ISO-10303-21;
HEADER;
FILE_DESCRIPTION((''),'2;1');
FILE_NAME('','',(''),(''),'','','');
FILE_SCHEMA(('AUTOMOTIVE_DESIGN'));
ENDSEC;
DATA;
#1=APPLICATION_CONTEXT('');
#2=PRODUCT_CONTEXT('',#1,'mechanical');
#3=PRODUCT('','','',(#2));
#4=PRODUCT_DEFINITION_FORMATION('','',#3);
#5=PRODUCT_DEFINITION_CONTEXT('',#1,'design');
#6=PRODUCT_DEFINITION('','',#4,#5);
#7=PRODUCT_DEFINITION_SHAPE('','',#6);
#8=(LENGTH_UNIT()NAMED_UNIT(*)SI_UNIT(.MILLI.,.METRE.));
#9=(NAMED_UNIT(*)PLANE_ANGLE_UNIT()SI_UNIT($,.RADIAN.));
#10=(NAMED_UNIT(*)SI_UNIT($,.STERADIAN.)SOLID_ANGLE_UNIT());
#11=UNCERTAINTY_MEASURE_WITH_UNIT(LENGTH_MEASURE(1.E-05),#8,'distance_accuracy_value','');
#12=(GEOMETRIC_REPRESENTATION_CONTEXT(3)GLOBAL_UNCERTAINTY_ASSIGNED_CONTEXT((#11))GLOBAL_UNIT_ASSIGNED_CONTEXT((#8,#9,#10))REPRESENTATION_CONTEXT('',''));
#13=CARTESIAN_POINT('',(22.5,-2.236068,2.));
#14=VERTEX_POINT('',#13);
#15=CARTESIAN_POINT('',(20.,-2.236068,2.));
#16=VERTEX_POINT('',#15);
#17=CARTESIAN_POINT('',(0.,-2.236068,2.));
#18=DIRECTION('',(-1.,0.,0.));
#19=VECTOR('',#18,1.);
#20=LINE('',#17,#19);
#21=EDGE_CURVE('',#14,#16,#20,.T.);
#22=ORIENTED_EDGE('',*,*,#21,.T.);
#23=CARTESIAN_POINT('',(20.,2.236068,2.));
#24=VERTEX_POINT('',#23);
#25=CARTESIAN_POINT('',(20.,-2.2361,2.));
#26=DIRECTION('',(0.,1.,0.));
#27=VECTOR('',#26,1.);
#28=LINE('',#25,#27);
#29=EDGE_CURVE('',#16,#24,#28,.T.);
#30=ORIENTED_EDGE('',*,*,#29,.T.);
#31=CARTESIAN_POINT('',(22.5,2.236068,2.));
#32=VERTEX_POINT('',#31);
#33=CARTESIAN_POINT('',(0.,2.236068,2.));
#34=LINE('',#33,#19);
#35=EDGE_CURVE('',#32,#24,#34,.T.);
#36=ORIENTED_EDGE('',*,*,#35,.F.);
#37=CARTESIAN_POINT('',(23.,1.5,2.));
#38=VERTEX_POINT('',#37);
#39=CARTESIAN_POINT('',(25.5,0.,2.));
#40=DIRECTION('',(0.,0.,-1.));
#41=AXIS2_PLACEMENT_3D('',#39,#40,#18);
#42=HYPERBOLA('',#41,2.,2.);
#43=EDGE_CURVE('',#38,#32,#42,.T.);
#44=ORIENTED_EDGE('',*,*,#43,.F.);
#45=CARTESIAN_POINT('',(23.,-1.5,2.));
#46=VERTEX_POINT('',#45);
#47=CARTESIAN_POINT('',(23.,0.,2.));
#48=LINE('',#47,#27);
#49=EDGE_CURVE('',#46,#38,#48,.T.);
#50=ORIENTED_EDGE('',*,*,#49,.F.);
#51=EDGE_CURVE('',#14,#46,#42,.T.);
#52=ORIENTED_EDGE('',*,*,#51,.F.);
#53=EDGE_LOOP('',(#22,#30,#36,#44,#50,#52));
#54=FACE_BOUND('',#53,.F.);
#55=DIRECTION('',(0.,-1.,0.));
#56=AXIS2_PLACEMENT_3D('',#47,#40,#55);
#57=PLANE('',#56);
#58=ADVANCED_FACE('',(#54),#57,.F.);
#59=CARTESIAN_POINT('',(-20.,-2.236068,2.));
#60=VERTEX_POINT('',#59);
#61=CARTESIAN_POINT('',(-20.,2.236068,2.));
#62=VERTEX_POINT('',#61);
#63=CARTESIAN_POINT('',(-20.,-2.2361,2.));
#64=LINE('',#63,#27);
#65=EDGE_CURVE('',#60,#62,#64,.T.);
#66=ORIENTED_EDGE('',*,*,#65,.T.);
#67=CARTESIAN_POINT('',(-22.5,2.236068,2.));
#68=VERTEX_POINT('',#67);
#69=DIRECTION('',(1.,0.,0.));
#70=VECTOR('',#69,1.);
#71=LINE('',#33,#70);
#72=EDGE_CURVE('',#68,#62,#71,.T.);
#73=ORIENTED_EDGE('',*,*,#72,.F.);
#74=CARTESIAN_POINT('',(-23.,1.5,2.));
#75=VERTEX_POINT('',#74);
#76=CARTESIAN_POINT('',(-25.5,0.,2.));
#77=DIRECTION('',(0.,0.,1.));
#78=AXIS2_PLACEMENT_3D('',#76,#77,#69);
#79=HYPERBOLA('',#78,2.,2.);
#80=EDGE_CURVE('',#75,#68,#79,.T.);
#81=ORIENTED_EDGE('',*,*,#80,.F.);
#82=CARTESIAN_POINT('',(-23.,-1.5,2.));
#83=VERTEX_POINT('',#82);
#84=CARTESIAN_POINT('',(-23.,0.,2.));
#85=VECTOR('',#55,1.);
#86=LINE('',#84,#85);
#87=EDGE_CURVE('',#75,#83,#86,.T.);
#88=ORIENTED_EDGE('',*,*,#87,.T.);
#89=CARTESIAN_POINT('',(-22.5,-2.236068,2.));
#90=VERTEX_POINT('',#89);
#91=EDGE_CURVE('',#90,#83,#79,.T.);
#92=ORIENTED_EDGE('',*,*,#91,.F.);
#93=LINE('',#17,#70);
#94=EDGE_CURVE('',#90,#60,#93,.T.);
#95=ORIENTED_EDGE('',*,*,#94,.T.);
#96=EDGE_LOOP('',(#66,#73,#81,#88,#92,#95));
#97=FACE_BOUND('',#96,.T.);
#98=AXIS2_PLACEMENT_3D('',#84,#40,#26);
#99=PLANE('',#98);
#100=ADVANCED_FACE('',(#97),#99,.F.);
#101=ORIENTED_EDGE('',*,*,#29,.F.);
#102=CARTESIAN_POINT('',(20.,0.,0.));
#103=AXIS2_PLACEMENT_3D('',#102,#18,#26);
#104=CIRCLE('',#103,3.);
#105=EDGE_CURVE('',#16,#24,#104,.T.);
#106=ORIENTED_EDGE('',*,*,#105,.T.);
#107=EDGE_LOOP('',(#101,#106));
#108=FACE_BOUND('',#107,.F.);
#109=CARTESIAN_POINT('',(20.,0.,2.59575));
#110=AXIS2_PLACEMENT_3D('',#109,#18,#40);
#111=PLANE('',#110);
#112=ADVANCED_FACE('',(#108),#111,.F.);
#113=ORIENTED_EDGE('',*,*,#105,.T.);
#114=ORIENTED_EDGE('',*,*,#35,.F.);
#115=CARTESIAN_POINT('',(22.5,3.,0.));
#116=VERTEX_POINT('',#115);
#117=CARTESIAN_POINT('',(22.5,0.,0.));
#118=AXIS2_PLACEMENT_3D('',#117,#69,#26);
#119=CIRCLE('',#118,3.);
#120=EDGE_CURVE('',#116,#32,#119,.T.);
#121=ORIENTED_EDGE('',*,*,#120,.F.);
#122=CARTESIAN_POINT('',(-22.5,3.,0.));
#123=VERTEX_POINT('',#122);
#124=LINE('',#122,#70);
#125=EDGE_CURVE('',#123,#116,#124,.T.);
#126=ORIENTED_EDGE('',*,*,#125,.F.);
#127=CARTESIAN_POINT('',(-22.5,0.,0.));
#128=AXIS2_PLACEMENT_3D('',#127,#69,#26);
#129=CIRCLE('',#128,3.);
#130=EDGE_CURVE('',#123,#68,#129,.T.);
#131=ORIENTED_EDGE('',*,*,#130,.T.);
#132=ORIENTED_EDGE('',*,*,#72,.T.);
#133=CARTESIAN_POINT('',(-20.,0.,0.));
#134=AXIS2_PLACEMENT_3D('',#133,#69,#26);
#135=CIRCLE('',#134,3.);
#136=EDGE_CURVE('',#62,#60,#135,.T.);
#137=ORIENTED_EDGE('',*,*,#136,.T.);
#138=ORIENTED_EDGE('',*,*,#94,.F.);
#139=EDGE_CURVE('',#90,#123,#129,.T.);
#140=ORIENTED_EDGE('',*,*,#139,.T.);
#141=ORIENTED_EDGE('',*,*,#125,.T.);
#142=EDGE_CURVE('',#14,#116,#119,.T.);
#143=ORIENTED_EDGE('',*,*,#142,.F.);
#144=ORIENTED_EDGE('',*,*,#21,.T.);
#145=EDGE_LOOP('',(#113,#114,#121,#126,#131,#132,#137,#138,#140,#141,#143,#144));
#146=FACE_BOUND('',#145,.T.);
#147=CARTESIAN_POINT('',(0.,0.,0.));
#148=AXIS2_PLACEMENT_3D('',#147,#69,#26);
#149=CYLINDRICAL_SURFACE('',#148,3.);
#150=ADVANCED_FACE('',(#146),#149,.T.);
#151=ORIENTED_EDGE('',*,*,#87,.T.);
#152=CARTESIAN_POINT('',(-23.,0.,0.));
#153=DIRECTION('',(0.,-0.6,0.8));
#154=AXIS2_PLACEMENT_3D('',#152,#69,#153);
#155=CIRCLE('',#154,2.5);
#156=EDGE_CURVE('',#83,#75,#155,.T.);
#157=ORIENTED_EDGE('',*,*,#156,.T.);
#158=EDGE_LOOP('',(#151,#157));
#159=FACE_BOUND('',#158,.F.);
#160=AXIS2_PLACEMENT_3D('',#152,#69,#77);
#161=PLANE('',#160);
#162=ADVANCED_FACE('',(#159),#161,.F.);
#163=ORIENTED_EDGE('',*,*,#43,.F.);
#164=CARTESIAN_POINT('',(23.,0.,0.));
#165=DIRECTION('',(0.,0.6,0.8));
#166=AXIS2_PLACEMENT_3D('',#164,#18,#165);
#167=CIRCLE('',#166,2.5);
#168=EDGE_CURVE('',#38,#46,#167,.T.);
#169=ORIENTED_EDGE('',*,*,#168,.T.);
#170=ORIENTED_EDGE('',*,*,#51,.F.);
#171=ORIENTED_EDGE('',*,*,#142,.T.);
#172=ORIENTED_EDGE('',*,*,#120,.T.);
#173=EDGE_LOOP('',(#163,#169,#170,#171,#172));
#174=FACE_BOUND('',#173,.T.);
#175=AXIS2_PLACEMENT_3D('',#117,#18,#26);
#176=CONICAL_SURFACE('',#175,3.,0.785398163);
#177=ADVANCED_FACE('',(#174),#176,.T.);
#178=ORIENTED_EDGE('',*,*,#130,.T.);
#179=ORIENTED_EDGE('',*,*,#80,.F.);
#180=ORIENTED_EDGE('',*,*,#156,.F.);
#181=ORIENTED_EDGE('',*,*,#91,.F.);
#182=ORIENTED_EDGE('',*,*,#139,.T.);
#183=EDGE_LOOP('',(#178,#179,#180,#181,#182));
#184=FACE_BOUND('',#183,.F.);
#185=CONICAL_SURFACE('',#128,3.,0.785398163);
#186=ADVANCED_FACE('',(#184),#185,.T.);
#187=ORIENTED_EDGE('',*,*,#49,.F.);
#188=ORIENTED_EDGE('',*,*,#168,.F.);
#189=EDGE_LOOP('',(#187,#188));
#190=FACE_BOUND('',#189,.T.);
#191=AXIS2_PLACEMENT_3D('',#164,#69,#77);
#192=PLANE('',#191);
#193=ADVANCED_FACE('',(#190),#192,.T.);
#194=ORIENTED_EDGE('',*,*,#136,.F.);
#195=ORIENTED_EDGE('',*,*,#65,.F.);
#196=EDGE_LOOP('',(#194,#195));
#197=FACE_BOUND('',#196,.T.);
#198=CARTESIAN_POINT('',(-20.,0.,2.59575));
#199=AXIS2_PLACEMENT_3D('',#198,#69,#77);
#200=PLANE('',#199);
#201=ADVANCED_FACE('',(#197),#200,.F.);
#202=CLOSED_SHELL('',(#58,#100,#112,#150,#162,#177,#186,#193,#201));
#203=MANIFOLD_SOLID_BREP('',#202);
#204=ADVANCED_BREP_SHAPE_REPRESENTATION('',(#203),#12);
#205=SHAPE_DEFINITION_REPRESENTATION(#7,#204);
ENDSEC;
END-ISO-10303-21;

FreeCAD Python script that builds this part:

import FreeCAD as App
import Part
import Sketcher
from FreeCAD import Vector
Q = App.Units.Quantity


def edges_at(feature, points):
    """Names of the edges that pass closest to the given points."""
    edges = feature.Shape.Edges
    near = lambda p: min(range(len(edges)), key=lambda i: edges[i].distToShape(Part.Vertex(*p))[0])
    return sorted({f"Edge{near(p) + 1}" for p in points})


def add_polygon(sketch, points):
    """Adds a closed chain of lines whose ends are joined by coincident constraints."""
    first, n = sketch.GeometryCount, len(points)
    for a, b in zip(points, points[1:] + points[:1]):
        sketch.addGeometry(Part.LineSegment(App.Vector(*a, 0), App.Vector(*b, 0)), False)
    for i in range(n):
        sketch.addConstraint(Sketcher.Constraint("Coincident", first + i, 2, first + (i + 1) % n, 1))

doc = App.newDocument("Part")
body = doc.addObject("PartDesign::Body", "Body")

# Sketch on YZ plane
sketch1 = doc.addObject("Sketcher::SketchObject", "Sketch")
body.addObject(sketch1)
sketch1.AttachmentSupport = (doc.YZ_Plane, [""])
sketch1.MapMode = "FlatFace"
sketch1.addGeometry(Part.Circle(Vector(0, 0, 0), Vector(0, 0, 1), 3), False)
sketch1.addConstraint([
    Sketcher.Constraint("Coincident", 0, 3, -1, 1),
    Sketcher.Constraint("Diameter", 0, Q("6 mm")),
])
pad1 = doc.addObject("PartDesign::Pad", "Pad")
body.addObject(pad1)
pad1.Profile = sketch1
pad1.Length = 46
pad1.Midplane = True
doc.recompute()

chamfer = doc.addObject("PartDesign::Chamfer", "Chamfer")
body.addObject(chamfer)
chamfer.Base = (pad1, edges_at(pad1, [(23, -3, 0)]))
chamfer.Size = 0.5
doc.recompute()

chamfer2 = doc.addObject("PartDesign::Chamfer", "Chamfer001")
body.addObject(chamfer2)
chamfer2.Base = (chamfer, edges_at(chamfer, [(-23, -3, 0)]))
chamfer2.Size = 0.5

# Sketch on YZ plane
sketch2 = doc.addObject("Sketcher::SketchObject", "Sketch001")
body.addObject(sketch2)
sketch2.AttachmentSupport = (doc.YZ_Plane, [""])
sketch2.MapMode = "FlatFace"
sketch2.AttachmentOffset = App.Placement(Vector(0, 0, 23), App.Rotation())
add_polygon(sketch2, [(2.2361, 3.1915), (-2.2361, 3.1915), (-2.2361, 2), (2.2361, 2)])  # lines 0-3
sketch2.addConstraint([
    Sketcher.Constraint("Horizontal", 0),
    Sketcher.Constraint("Vertical", 1),
    Sketcher.Constraint("Horizontal", 2),
    Sketcher.Constraint("Vertical", 3),
    Sketcher.Constraint("DistanceY", -1, 1, 1, 2, Q("2 mm")),
    Sketcher.Constraint("DistanceX", 0, 2, 0, 1, Q("4.4722 mm")),
    Sketcher.Constraint("DistanceY", 1, 2, 1, 1, Q("1.1915 mm")),
    Sketcher.Constraint("DistanceX", 0, 2, -1, 1, Q("2.236 mm")),
])
pocket1 = doc.addObject("PartDesign::Pocket", "Pocket")
body.addObject(pocket1)
pocket1.Profile = sketch2
pocket1.Length = 6
pocket1.Midplane = True
doc.recompute()

mirrored = doc.addObject("PartDesign::Mirrored", "Mirrored")
body.addObject(mirrored)
mirrored.Originals = [pocket1]
mirrored.MirrorPlane = (doc.YZ_Plane, [""])
body.Tip = mirrored

doc.recompute()
